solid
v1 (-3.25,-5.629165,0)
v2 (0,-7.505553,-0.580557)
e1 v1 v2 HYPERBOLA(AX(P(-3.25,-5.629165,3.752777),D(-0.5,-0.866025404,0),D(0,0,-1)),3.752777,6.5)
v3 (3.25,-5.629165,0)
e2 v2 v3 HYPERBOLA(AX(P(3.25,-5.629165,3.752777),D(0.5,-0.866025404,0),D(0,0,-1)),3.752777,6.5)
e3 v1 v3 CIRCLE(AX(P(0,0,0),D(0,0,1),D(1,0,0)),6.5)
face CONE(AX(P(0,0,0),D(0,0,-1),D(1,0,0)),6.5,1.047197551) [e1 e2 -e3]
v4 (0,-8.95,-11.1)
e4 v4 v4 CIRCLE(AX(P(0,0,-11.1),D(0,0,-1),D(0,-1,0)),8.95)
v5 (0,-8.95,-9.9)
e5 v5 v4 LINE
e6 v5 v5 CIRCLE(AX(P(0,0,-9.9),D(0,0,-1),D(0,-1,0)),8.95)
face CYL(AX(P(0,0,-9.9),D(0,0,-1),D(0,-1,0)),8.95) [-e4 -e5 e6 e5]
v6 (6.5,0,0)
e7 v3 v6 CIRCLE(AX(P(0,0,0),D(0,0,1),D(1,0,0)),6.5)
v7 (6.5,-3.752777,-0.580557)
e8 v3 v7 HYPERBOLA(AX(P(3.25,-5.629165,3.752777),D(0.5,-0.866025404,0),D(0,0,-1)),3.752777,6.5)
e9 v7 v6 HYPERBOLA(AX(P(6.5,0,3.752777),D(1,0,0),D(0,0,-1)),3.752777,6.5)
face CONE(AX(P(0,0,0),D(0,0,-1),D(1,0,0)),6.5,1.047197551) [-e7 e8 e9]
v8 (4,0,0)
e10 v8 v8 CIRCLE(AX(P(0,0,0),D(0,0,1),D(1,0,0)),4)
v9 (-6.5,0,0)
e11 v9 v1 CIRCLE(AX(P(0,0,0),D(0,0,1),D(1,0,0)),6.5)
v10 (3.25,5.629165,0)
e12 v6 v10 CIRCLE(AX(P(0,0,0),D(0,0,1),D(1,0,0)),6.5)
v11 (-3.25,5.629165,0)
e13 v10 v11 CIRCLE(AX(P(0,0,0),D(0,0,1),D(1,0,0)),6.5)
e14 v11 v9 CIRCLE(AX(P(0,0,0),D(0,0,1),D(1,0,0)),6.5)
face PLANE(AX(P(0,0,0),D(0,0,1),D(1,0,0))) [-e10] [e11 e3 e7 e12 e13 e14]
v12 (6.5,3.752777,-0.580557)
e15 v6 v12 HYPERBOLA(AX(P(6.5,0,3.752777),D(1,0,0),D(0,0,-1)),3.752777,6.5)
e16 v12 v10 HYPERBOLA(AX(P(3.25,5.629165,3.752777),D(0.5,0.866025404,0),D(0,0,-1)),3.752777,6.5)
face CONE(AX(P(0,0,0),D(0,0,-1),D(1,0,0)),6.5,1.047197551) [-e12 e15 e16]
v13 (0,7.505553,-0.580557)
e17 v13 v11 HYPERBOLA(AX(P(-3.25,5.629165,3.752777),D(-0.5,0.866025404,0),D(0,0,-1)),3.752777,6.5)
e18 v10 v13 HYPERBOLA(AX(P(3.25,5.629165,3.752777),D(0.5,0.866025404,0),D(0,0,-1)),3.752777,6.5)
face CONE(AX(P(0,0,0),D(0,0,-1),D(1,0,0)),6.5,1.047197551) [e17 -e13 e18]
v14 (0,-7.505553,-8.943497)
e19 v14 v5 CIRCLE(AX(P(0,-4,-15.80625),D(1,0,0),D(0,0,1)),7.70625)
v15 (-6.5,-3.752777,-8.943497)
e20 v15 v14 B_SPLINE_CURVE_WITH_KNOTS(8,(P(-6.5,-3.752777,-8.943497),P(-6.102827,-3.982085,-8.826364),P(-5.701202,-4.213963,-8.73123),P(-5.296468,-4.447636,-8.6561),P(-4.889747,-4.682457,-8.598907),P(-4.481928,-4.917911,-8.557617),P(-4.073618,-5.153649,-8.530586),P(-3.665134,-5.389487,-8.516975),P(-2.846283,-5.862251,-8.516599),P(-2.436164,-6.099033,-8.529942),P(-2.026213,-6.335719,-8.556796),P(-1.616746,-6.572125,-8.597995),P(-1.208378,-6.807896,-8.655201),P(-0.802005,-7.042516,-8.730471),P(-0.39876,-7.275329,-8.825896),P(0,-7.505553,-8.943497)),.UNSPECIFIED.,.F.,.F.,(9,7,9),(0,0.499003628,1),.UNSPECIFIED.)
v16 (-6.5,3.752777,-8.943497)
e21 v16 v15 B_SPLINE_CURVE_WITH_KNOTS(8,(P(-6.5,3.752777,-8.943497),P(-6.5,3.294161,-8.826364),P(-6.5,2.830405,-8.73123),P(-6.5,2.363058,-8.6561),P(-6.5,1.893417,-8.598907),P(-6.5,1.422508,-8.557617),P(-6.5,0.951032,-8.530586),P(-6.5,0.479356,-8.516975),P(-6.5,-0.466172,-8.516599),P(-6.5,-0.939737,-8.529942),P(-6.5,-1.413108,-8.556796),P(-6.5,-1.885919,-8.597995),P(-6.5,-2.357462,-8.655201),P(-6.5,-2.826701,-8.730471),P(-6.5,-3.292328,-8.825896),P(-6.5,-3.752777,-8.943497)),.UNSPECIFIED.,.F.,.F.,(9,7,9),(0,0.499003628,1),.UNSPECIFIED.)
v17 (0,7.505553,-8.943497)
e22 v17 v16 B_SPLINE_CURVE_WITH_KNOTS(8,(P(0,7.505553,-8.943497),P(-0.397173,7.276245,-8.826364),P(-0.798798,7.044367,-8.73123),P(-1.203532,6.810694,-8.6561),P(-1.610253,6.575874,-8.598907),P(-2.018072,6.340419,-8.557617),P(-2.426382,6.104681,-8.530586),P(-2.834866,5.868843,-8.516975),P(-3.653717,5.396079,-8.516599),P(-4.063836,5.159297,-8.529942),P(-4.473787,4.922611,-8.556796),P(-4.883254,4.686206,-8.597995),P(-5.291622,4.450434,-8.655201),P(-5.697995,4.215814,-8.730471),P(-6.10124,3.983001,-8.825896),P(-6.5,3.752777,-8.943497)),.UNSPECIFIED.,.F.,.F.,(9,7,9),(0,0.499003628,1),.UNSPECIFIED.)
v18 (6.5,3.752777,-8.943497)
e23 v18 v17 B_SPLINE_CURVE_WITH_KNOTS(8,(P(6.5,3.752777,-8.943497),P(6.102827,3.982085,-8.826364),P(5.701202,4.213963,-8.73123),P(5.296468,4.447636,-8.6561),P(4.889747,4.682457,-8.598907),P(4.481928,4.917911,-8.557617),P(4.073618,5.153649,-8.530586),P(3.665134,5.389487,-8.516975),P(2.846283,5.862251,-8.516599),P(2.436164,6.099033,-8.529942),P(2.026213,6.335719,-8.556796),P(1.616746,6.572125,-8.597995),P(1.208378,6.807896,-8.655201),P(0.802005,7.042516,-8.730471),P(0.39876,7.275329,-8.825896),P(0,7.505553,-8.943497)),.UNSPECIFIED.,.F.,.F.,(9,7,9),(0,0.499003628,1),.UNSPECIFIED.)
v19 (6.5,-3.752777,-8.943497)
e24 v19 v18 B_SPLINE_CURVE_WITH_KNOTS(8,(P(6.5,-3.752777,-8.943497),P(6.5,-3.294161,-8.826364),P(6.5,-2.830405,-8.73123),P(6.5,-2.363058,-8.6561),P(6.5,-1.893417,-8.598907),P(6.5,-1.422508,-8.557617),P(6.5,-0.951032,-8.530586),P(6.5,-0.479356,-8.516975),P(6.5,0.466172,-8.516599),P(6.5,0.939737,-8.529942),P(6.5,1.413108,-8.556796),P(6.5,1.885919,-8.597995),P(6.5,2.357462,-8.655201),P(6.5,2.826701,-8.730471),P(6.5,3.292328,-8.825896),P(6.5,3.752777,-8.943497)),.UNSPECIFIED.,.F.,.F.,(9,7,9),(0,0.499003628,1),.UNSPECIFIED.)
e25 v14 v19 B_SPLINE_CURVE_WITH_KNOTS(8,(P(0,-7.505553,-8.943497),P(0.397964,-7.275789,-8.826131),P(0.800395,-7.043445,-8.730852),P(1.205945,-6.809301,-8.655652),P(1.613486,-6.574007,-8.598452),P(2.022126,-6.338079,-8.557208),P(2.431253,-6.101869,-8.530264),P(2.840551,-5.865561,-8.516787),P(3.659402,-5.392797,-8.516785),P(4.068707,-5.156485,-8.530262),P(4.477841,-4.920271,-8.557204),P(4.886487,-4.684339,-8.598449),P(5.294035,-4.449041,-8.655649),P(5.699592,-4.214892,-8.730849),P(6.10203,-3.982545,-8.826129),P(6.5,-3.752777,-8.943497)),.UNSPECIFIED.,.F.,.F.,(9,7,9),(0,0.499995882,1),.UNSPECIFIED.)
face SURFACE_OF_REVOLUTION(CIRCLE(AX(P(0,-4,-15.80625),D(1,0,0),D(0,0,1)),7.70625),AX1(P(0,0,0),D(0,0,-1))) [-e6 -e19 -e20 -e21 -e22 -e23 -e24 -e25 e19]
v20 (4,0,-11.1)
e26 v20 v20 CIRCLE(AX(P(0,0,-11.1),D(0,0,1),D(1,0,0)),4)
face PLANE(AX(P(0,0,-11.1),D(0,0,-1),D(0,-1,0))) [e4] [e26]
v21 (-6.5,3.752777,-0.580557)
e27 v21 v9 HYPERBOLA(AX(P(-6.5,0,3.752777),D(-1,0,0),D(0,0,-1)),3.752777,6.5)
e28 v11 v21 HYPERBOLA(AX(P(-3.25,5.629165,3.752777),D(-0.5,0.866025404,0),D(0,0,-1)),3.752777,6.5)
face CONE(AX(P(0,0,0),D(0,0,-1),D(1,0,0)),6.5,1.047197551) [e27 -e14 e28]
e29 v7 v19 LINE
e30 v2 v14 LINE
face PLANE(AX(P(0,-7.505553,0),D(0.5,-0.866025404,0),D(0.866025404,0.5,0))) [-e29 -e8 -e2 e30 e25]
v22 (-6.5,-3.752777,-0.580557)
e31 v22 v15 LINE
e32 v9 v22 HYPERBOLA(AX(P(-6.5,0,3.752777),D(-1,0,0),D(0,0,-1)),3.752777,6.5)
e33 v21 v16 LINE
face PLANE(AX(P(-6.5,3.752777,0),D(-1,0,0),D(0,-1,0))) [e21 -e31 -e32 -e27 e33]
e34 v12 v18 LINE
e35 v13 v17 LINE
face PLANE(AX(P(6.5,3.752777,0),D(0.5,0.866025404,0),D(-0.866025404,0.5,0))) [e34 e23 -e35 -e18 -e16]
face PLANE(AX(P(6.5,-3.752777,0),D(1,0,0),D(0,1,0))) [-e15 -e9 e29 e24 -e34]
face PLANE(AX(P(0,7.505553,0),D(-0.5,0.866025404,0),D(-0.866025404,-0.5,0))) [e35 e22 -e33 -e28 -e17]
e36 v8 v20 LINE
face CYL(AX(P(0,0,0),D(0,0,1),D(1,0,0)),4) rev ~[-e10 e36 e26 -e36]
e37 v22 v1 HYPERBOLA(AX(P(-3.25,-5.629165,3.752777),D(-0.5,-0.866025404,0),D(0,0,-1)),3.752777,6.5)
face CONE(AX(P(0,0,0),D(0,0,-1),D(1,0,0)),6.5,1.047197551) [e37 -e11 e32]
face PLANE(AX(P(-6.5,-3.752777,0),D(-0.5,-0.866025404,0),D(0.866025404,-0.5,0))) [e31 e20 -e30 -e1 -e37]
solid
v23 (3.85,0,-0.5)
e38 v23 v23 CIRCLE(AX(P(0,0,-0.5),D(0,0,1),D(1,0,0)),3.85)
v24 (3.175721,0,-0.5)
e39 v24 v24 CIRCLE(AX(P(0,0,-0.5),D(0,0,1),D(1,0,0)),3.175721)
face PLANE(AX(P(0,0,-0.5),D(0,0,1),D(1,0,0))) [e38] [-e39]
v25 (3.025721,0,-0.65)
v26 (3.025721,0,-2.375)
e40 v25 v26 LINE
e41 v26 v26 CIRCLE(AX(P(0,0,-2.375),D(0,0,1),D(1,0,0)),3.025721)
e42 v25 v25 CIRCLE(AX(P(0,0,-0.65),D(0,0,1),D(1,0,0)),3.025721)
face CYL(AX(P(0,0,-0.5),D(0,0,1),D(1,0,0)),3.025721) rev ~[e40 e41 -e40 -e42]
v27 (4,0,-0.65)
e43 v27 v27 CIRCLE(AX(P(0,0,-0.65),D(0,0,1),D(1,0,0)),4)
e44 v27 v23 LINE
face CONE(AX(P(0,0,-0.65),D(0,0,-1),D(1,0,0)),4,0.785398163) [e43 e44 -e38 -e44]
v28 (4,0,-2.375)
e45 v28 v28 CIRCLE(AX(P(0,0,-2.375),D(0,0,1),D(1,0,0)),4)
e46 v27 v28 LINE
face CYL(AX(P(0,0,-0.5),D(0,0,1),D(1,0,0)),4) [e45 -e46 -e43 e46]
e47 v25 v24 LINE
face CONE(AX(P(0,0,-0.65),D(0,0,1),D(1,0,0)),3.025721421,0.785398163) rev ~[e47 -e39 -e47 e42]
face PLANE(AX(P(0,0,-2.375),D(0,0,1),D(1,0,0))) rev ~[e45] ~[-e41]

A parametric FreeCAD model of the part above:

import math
import FreeCAD as App
import Part
import Sketcher
Q = App.Units.Quantity


def edges_at(feature, points):
    """Names of the edges that pass closest to the given points."""
    edges = feature.Shape.Edges
    near = lambda p: min(range(len(edges)), key=lambda i: edges[i].distToShape(Part.Vertex(*p))[0])
    return sorted({f"Edge{near(p) + 1}" for p in points})


def faces_at(feature, points):
    """Names of the faces that lie closest to the given points."""
    faces = feature.Shape.Faces
    near = lambda p: min(range(len(faces)), key=lambda i: faces[i].distToShape(Part.Vertex(*p))[0])
    return sorted({f"Face{near(p) + 1}" for p in points})


def add_polygon(sketch, points):
    """Adds a closed chain of lines whose ends are joined by coincident constraints."""
    first, n = sketch.GeometryCount, len(points)
    for a, b in zip(points, points[1:] + points[:1]):
        sketch.addGeometry(Part.LineSegment(App.Vector(*a, 0), App.Vector(*b, 0)), False)
    for i in range(n):
        sketch.addConstraint(Sketcher.Constraint("Coincident", first + i, 2, first + (i + 1) % n, 1))

doc = App.newDocument("Part")
body = doc.addObject("PartDesign::Body", "Body")

sketch1 = body.newObject("Sketcher::SketchObject", "Sketch")
sketch1.AttachmentSupport = (doc.getObject("XY_Plane"), [""])
sketch1.MapMode = "FlatFace"
add_polygon(sketch1, [(0, 7.5), (-6.5, 3.8), (-6.5, -3.8), (0, -7.5), (6.5, -3.8), (6.5, 3.8)])
sketch1.addGeometry(Part.Circle(App.Vector(0, 0, 0), App.Vector(0, 0, 1), 4), False)
sketch1.addConstraint([
    Sketcher.Constraint("Vertical", 1),
    Sketcher.Constraint("Vertical", 4),
    Sketcher.Constraint("Coincident", 6, 3, -1, 1),
    Sketcher.Constraint("Symmetric", 0, 2, 3, 2, -1, 1),
    Sketcher.Constraint("Symmetric", 2, 2, 5, 2, -1, 1),
    Sketcher.Constraint("PointOnObject", 2, 2, -2),
    Sketcher.Constraint("Parallel", 2, 5),
    Sketcher.Constraint("Horizontal", 1, 2, 3, 2),
    Sketcher.Constraint("Diameter", 6, Q("8 mm")),
    Sketcher.Constraint("Angle", 0, Q("-150 deg")),
    Sketcher.Constraint("DistanceX", 1, 2, 3, 2, Q("13 mm")),
    Sketcher.Constraint("DistanceY", 1, 2, 1, 1, Q("7.505554 mm")),
])
pad1 = body.newObject("PartDesign::Pad", "Pad")
pad1.Profile = sketch1
pad1.Length = 11.1
pad1.Reversed = True
body2 = doc.addObject("PartDesign::Body", "Body001")

sketch2 = body2.newObject("Sketcher::SketchObject", "Sketch001")
sketch2.AttachmentSupport = (doc.getObject("XY_Plane001"), [""])
sketch2.MapMode = "FlatFace"
add_polygon(sketch2, [(-37, 38), (-37, -38), (37, -38), (37, 38)])
sketch2.addGeometry(Part.Circle(App.Vector(0, 0, 0), App.Vector(0, 0, 1), 6), False)
sketch2.addConstraint([
    Sketcher.Constraint("Vertical", 0),
    Sketcher.Constraint("Horizontal", 1),
    Sketcher.Constraint("Vertical", 2),
    Sketcher.Constraint("Horizontal", 3),
    Sketcher.Constraint("Coincident", 4, 3, -1, 1),
    Sketcher.Constraint("Symmetric", 0, 2, 2, 2, -1, 1),
    Sketcher.Constraint("Diameter", 4, Q("13 mm")),
    Sketcher.Constraint("DistanceX", 1, 1, 1, 2, Q("74.604 mm")),
    Sketcher.Constraint("DistanceY", 0, 2, 0, 1, Q("76.616 mm")),
])
pad2 = body2.newObject("PartDesign::Pad", "Pad001")
pad2.Profile = sketch2
pad2.Length = 15.892728
pad2.Reversed = True
doc.recompute()

draft = body2.newObject("PartDesign::Draft", "Draft")
draft.Base = (pad2, faces_at(pad2, [
    (0, -38.308, -7.946),
    (37.302, 0, -7.946),
    (0, 38.308, -7.946),
    (-37.302, 0, -7.946),
    (-6.5, 0, -7.946),
]))
draft.NeutralPlane = (doc.getObject("XY_Plane001"), [""])
draft.Angle = 60
draft.Reversed = True
doc.recompute()

boolean = body.newObject("PartDesign::Boolean", "Boolean")
boolean.Type = "Cut"
boolean.addObjects([body2])

sketch3 = body.newObject("Sketcher::SketchObject", "Sketch002")
sketch3.AttachmentSupport = (doc.getObject("YZ_Plane"), [""])
sketch3.MapMode = "FlatFace"
sketch3.addGeometry([
    Part.LineSegment(App.Vector(4, -11.1, 0), App.Vector(8.9, -11.1, 0)),
    Part.LineSegment(App.Vector(8.9, -11.1, 0), App.Vector(8.9, -9.9, 0)),
    Part.ArcOfCircle(Part.Circle(App.Vector(4, -15.8, 0), App.Vector(0, 0, 1), 7.7), math.radians(50), math.radians(90)),
    Part.LineSegment(App.Vector(4, -8.1, 0), App.Vector(4, -11.1, 0)),
], False)
sketch3.addConstraint([
    Sketcher.Constraint("Coincident", 0, 2, 1, 1),
    Sketcher.Constraint("Coincident", 1, 2, 2, 1),
    Sketcher.Constraint("Coincident", 2, 2, 3, 1),
    Sketcher.Constraint("Coincident", 3, 2, 0, 1),
    Sketcher.Constraint("Horizontal", 0),
    Sketcher.Constraint("Vertical", 1),
    Sketcher.Constraint("Vertical", 3),
    Sketcher.Constraint("DistanceY", 3, 2, 3, 1, Q("3 mm")),
    Sketcher.Constraint("DistanceY", 1, 1, 1, 2, Q("1.2 mm")),
    Sketcher.Constraint("DistanceX", -1, 1, 2, 3, Q("4 mm")),
    Sketcher.Constraint("DistanceX", -1, 1, 2, 2, Q("4 mm")),
    Sketcher.Constraint("DistanceX", 0, 1, 0, 2, Q("4.95 mm")),
    Sketcher.Constraint("DistanceY", 0, 2, -1, 1, Q("11.1 mm")),
])
revolution = body.newObject("PartDesign::Revolution", "Revolution")
revolution.Profile = sketch3
revolution.ReferenceAxis = (sketch3, ["V_Axis"])
revolution.Angle = 360
body3 = doc.addObject("PartDesign::Body", "Body002")

sketch4 = body3.newObject("Sketcher::SketchObject", "Sketch003")
sketch4.AttachmentSupport = (doc.getObject("XY_Plane002"), [""])
sketch4.MapMode = "FlatFace"
sketch4.AttachmentOffset = App.Placement(App.Vector(0, 0, -0.5), App.Rotation())
sketch4.addGeometry([
    Part.Circle(App.Vector(0, 0, 0), App.Vector(0, 0, 1), 4),
    Part.Circle(App.Vector(0, 0, 0), App.Vector(0, 0, 1), 3),
], False)
sketch4.addConstraint([
    Sketcher.Constraint("Coincident", 0, 3, -1, 1),
    Sketcher.Constraint("Coincident", 1, 3, -1, 1),
    Sketcher.Constraint("Diameter", 0, Q("8 mm")),
    Sketcher.Constraint("Diameter", 1, Q("6.051443 mm")),
])
pad3 = body3.newObject("PartDesign::Pad", "Pad002")
pad3.Profile = sketch4
pad3.Length = 1.875
pad3.Reversed = True
doc.recompute()

chamfer = body3.newObject("PartDesign::Chamfer", "Chamfer")
chamfer.Base = (pad3, edges_at(pad3, [(-4, 0, -0.5), (-3.026, 0, -0.5)]))
chamfer.Size = 0.15

doc.recompute()
